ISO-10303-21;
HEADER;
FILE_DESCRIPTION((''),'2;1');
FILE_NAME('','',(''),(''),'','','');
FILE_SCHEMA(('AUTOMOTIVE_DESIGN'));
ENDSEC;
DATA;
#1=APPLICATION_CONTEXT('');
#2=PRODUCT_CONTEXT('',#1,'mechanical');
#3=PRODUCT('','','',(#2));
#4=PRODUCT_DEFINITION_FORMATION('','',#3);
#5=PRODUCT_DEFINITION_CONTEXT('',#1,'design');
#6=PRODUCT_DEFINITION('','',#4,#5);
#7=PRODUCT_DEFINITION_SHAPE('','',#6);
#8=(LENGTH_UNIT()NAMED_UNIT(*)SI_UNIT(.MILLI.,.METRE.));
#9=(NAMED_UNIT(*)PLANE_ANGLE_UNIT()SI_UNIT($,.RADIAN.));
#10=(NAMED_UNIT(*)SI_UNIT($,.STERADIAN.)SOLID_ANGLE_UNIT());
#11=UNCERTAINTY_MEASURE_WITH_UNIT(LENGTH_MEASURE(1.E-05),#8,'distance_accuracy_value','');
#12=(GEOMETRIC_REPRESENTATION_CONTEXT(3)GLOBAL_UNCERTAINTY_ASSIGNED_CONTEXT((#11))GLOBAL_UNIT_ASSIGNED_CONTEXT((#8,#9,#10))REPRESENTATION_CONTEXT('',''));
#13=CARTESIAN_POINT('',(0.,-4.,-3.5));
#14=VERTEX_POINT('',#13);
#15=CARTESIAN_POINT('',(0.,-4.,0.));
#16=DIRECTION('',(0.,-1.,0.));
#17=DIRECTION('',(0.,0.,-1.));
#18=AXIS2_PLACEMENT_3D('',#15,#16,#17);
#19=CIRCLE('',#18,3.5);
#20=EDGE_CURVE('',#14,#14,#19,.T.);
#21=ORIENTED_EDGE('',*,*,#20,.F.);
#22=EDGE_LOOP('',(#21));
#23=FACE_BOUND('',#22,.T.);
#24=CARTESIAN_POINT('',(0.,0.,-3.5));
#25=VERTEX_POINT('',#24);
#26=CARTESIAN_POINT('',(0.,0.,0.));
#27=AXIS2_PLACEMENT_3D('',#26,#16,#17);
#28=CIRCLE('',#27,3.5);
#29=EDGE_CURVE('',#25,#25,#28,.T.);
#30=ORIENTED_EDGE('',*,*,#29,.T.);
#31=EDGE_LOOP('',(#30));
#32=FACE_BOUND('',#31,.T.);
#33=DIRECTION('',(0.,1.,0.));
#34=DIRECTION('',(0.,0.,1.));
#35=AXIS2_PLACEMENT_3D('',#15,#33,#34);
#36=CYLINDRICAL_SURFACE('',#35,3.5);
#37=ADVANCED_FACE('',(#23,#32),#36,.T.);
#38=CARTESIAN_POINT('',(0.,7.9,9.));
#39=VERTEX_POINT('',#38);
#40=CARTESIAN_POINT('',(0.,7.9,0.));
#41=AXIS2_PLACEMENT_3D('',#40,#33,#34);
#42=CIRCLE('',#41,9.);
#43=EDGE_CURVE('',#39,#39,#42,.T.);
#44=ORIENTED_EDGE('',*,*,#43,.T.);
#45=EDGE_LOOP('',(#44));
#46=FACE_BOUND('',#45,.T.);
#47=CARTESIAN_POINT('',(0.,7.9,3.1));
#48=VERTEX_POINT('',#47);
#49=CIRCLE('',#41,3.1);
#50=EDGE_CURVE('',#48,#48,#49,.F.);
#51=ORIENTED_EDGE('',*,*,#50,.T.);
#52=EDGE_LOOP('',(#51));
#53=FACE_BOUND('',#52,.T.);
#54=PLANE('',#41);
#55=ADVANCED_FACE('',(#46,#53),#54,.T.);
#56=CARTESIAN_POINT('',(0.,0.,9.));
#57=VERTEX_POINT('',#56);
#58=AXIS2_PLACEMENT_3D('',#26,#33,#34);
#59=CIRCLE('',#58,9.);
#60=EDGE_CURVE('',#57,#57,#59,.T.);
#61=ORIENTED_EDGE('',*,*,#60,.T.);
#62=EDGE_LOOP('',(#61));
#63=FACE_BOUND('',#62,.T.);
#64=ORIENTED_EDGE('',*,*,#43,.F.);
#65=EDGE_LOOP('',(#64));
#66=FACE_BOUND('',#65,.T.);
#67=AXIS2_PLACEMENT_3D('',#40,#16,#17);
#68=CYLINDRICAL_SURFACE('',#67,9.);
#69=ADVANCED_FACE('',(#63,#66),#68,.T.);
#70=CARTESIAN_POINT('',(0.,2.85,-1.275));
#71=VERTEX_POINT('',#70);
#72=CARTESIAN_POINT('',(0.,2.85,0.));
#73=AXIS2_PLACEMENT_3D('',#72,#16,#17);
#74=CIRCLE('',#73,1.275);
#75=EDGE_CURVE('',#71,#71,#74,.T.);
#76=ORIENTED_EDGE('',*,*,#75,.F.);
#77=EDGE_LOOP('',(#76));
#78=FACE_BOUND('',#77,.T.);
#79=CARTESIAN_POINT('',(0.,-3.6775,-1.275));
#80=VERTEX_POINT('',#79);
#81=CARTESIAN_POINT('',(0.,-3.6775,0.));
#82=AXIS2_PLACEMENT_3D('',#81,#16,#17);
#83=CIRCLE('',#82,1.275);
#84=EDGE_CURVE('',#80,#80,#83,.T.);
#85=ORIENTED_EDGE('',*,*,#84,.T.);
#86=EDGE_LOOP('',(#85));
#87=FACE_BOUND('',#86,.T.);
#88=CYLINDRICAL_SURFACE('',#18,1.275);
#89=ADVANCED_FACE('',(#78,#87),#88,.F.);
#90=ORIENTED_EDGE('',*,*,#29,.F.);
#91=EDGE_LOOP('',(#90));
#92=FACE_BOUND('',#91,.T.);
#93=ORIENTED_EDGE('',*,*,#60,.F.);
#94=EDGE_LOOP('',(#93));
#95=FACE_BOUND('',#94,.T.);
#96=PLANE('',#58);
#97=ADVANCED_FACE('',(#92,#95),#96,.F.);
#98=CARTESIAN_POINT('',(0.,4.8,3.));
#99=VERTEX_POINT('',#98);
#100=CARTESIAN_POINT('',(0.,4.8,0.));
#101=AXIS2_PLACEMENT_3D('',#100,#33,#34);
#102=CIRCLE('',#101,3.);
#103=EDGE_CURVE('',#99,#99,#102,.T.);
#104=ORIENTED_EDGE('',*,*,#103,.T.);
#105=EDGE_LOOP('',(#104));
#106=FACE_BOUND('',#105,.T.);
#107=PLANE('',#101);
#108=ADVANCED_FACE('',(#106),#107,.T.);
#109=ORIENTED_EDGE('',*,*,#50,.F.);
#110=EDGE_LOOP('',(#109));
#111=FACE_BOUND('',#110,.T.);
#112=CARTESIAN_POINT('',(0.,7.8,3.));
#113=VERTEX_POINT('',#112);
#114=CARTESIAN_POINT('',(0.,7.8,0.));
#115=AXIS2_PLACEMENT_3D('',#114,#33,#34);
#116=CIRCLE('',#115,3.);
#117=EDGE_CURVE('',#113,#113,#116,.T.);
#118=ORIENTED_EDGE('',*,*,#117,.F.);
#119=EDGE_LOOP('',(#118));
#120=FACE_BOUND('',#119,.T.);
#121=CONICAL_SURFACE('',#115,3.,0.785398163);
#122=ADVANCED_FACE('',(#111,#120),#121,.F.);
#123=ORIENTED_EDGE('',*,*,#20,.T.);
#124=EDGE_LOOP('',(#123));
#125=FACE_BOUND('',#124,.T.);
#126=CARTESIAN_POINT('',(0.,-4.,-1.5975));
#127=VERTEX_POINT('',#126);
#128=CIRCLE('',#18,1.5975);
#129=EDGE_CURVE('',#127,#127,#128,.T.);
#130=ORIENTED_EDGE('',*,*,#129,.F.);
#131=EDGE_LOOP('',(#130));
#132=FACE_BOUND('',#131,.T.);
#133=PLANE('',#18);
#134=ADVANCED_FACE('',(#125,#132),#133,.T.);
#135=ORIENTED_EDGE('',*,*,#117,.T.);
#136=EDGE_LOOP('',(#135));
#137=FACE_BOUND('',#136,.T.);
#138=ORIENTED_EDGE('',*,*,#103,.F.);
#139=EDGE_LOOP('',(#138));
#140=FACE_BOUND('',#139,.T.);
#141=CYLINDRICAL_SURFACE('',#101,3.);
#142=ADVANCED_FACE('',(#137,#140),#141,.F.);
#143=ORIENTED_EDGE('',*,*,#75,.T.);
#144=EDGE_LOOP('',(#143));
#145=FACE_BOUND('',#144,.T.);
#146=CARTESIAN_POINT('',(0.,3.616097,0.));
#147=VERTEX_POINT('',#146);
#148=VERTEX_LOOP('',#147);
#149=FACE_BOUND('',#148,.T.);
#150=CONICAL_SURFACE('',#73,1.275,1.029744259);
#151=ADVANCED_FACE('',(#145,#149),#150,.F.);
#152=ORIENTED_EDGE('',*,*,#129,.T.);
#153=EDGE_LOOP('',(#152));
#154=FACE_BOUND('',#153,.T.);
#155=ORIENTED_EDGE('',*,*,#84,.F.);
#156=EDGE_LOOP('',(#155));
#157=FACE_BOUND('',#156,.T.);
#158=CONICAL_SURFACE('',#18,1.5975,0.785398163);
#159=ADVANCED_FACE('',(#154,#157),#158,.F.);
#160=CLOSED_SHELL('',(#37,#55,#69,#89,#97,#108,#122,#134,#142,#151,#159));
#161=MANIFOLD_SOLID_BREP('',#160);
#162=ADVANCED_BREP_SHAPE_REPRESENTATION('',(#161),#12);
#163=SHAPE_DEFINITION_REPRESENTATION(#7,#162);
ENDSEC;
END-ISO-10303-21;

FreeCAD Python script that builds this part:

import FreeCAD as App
import Part
import Sketcher

V = App.Vector


def edges_at(feature, points):
    """Names of the edges that pass closest to the given points."""
    edges = feature.Shape.Edges
    near = lambda p: min(range(len(edges)), key=lambda i: edges[i].distToShape(Part.Vertex(*p))[0])
    return sorted({f"Edge{near(p) + 1}" for p in points})

doc = App.newDocument("Part")
params = doc.addObject("Spreadsheet::Sheet", "Params")
for row, (alias, value) in enumerate([
    ("sketch1_diameter", "18 mm"),
    ("pad1_length", "7.9 mm"),
    ("sketch2_diameter", "6 mm"),
    ("pocket1_length", "3.1 mm"),
    ("sketch3_diameter", "7 mm"),
    ("pad2_length", "4 mm"),
    ("sketch4_diameter", "2.55 mm"),
    ("hole_diameter", "2.55 mm"),
    ("hole_depth", "6.85 mm"),
    ("hole_csink_diameter", "3.195 mm"),
    ("chamfer_size", "0.1 mm"),
], start=1):
    params.set(f"A{row}", alias)
    params.set(f"B{row}", "=" + value)
    params.setAlias(f"B{row}", alias)

body = doc.addObject("PartDesign::Body", "Body")

# Sketch on XZ plane
sketch1 = body.newObject("Sketcher::SketchObject", "Sketch")
sketch1.AttachmentSupport = (doc.getObject("XZ_Plane"), [""])
sketch1.MapMode = "FlatFace"
sketch1.addGeometry(Part.Circle(V(0, 0, 0), V(0, 0, 1), 9), False)
sketch1.addConstraint([
    Sketcher.Constraint("Coincident", 0, 3, -1, 1),
    Sketcher.Constraint("Diameter", 0, 18.0),
])
sketch1.setExpression("Constraints[1]", "Params.sketch1_diameter")
pad1 = body.newObject("PartDesign::Pad", "Pad")
pad1.Profile = sketch1
pad1.setExpression("Length", "Params.pad1_length")
pad1.Reversed = True

# Sketch on XZ plane
sketch2 = body.newObject("Sketcher::SketchObject", "Sketch001")
sketch2.AttachmentSupport = (doc.getObject("XZ_Plane"), [""])
sketch2.MapMode = "FlatFace"
sketch2.AttachmentOffset = App.Placement(V(0, 0, -7.9), App.Rotation())
sketch2.addGeometry(Part.Circle(V(0, 0, 0), V(0, 0, 1), 3), False)
sketch2.addConstraint([
    Sketcher.Constraint("Coincident", 0, 3, -1, 1),
    Sketcher.Constraint("Diameter", 0, 6.0),
])
sketch2.setExpression("Constraints[1]", "Params.sketch2_diameter")
pocket1 = body.newObject("PartDesign::Pocket", "Pocket")
pocket1.Profile = sketch2
pocket1.setExpression("Length", "Params.pocket1_length")
pocket1.Reversed = True

# Sketch on XZ plane
sketch3 = body.newObject("Sketcher::SketchObject", "Sketch002")
sketch3.AttachmentSupport = (doc.getObject("XZ_Plane"), [""])
sketch3.MapMode = "FlatFace"
sketch3.addGeometry(Part.Circle(V(0, 0, 0), V(0, 0, 1), 3.5), False)
sketch3.addConstraint([
    Sketcher.Constraint("Coincident", 0, 3, -1, 1),
    Sketcher.Constraint("Diameter", 0, 7.0),
])
sketch3.setExpression("Constraints[1]", "Params.sketch3_diameter")
pad2 = body.newObject("PartDesign::Pad", "Pad001")
pad2.Profile = sketch3
pad2.setExpression("Length", "Params.pad2_length")

# Sketch on XZ plane
sketch4 = body.newObject("Sketcher::SketchObject", "Sketch003")
sketch4.AttachmentSupport = (doc.getObject("XZ_Plane"), [""])
sketch4.MapMode = "FlatFace"
sketch4.AttachmentOffset = App.Placement(V(0, 0, 4), App.Rotation())
sketch4.addGeometry(Part.Circle(V(0, 0, 0), V(0, 0, 1), 1.3), False)
sketch4.addConstraint([
    Sketcher.Constraint("Coincident", 0, 3, -1, 1),
    Sketcher.Constraint("Diameter", 0, 2.55),
])
sketch4.setExpression("Constraints[1]", "Params.sketch4_diameter")
doc.recompute()
hole = body.newObject("PartDesign::Hole", "Hole")
hole.Profile = sketch4
hole.ThreadType = "None"
hole.setExpression("Diameter", "Params.hole_diameter")
hole.DepthType = "Dimension"
hole.setExpression("Depth", "Params.hole_depth")
hole.DrillPoint = "Angled"
hole.DrillPointAngle = 118
hole.HoleCutType = "Countersink"
hole.setExpression("HoleCutDiameter", "Params.hole_csink_diameter")
hole.HoleCutCountersinkAngle = 90
doc.recompute()

chamfer = body.newObject("PartDesign::Chamfer", "Chamfer")
chamfer.Base = (hole, edges_at(hole, [(-3, 7.9, 0)]))
chamfer.setExpression("Size", "Params.chamfer_size")

doc.recompute()
